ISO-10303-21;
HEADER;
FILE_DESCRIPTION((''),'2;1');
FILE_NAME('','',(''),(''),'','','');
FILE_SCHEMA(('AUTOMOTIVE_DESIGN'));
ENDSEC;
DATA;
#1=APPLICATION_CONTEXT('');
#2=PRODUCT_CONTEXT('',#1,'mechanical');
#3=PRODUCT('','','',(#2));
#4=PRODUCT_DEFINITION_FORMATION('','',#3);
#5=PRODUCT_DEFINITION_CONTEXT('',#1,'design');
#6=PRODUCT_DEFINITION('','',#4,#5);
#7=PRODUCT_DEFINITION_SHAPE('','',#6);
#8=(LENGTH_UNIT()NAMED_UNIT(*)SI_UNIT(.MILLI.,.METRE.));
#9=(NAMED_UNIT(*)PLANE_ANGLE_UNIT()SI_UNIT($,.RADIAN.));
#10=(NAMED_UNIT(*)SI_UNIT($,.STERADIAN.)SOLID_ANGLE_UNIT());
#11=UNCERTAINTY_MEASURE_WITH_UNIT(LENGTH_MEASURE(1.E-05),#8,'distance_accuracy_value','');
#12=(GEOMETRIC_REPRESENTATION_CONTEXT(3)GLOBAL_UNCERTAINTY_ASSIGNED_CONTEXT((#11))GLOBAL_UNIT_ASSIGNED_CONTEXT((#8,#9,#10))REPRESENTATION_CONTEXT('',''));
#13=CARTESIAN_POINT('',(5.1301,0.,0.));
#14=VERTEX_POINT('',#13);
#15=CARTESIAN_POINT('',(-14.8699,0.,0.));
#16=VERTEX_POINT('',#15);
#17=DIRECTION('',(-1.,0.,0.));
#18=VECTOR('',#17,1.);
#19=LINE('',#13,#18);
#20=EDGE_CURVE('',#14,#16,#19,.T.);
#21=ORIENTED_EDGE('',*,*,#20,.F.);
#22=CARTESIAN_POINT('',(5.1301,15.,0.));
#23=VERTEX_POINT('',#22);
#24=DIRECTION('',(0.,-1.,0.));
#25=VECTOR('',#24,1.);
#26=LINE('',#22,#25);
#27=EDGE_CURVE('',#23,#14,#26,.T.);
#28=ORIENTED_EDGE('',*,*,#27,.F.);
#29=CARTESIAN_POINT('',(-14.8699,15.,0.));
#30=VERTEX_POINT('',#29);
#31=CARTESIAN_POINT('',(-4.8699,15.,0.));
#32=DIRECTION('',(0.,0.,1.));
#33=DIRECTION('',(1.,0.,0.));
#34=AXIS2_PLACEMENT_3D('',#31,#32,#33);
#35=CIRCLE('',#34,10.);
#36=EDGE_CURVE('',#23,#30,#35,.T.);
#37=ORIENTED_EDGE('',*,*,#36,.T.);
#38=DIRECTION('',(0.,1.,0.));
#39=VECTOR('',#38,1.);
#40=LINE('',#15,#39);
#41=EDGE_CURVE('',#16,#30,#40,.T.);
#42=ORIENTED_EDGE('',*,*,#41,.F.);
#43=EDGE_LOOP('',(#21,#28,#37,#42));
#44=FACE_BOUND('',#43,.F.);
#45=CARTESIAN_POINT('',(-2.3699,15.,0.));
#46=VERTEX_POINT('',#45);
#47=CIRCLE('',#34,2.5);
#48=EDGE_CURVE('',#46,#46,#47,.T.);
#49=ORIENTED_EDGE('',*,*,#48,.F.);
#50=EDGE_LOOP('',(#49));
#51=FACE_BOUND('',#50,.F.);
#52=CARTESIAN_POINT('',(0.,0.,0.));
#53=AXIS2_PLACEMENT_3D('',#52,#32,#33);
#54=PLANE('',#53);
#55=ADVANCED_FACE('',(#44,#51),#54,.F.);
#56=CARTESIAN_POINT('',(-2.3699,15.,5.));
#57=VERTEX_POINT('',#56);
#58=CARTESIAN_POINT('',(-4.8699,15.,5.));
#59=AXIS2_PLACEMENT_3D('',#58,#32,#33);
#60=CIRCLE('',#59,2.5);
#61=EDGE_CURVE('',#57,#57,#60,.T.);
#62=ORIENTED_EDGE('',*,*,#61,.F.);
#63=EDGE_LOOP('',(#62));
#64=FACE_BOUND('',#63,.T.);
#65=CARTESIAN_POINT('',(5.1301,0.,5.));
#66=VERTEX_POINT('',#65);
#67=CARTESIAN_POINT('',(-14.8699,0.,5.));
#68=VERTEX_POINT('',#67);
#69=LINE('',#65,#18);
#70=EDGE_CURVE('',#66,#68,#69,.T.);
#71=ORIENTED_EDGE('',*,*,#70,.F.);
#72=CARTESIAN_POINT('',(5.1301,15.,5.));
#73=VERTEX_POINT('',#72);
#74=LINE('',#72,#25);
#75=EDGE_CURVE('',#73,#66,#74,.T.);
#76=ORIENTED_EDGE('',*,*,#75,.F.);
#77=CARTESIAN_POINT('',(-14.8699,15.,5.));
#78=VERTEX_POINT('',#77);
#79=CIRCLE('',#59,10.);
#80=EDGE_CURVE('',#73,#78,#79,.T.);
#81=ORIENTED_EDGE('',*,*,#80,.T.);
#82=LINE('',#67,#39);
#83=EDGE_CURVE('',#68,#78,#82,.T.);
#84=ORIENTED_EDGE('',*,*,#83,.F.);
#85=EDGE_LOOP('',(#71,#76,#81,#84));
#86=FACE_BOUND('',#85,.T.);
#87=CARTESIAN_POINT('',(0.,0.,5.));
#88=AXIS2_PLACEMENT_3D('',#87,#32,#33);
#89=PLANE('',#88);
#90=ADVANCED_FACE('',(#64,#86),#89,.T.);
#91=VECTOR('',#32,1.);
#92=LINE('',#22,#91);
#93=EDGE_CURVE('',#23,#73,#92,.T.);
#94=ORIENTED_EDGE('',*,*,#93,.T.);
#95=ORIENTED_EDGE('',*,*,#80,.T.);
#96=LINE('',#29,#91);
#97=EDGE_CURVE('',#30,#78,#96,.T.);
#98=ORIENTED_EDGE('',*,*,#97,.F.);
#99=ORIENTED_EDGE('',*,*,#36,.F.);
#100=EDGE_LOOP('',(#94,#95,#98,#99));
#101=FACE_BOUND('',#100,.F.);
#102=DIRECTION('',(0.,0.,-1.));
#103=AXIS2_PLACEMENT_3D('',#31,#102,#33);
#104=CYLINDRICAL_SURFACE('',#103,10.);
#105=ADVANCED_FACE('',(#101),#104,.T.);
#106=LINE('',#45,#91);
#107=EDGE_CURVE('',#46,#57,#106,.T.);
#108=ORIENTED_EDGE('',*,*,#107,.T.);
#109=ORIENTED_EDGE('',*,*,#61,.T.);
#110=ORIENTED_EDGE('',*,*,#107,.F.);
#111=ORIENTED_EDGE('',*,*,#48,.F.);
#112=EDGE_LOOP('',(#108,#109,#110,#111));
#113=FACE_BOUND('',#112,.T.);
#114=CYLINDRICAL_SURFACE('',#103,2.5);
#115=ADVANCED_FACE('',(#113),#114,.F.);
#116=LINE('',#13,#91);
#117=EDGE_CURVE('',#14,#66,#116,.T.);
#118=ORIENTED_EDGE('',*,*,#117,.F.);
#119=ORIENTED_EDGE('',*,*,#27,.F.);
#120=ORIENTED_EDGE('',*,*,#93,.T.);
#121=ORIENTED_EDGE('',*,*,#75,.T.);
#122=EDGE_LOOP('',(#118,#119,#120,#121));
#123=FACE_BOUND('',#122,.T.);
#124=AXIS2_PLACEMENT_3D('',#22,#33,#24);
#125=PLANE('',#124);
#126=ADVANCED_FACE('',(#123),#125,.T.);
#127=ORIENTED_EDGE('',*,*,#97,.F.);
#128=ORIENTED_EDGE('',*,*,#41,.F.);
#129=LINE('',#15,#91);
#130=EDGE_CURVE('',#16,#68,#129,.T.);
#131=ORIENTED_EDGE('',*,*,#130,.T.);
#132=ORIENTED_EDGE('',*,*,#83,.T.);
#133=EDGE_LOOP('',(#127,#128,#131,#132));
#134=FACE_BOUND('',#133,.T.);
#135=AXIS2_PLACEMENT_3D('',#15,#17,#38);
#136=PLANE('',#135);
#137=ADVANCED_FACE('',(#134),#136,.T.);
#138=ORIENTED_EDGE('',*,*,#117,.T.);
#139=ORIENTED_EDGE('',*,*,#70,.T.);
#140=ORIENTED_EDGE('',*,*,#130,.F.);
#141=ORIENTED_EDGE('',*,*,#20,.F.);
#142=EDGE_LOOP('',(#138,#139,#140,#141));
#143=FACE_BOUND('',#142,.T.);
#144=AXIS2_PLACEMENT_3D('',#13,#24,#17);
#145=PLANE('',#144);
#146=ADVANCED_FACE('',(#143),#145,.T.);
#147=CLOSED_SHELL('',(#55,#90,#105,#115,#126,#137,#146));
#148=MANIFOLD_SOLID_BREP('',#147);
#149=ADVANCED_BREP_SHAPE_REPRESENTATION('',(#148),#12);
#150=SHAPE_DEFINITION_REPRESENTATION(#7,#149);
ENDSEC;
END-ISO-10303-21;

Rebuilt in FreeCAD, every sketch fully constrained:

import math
import FreeCAD as App
import Part
import Sketcher

doc = App.newDocument("Part")
body = doc.addObject("PartDesign::Body", "Body")

# Sketch on XY plane
sketch1 = body.newObject("Sketcher::SketchObject", "Sketch")
sketch1.AttachmentSupport = (doc.getObject("XY_Plane"), [""])
sketch1.MapMode = "FlatFace"
sketch1.addGeometry(Part.LineSegment(App.Vector(5.1, 0, 0), App.Vector(5.1, 15, 0)), False)
sketch1.addGeometry(Part.ArcOfCircle(Part.Circle(App.Vector(-4.9, 15, 0), App.Vector(0, 0, 1), 10), math.radians(0), math.radians(180)), False)
sketch1.addGeometry(Part.LineSegment(App.Vector(-14.9, 15, 0), App.Vector(-14.9, 0, 0)), False)
sketch1.addGeometry(Part.LineSegment(App.Vector(-14.9, 0, 0), App.Vector(5.1, 0, 0)), False)
sketch1.addGeometry(Part.Circle(App.Vector(-4.9, 15, 0), App.Vector(0, 0, 1), 2.5), False)
sketch1.addConstraint(Sketcher.Constraint("Tangent", 0, 2, 1, 1))
sketch1.addConstraint(Sketcher.Constraint("Tangent", 1, 2, 2, 1))
sketch1.addConstraint(Sketcher.Constraint("Coincident", 2, 2, 3, 1))
sketch1.addConstraint(Sketcher.Constraint("Coincident", 3, 2, 0, 1))
sketch1.addConstraint(Sketcher.Constraint("Vertical", 0))
sketch1.addConstraint(Sketcher.Constraint("Vertical", 2))
sketch1.addConstraint(Sketcher.Constraint("Horizontal", 3))
sketch1.addConstraint(Sketcher.Constraint("Coincident", 4, 3, 1, 3))
sketch1.addConstraint(Sketcher.Constraint("PointOnObject", 2, 2, -1))
sketch1.addConstraint(Sketcher.Constraint("Diameter", 4, 5.0))
sketch1.addConstraint(Sketcher.Constraint("Radius", 1, 10.0))
sketch1.addConstraint(Sketcher.Constraint("DistanceY", 0, 1, 0, 2, 15.0))
sketch1.addConstraint(Sketcher.Constraint("DistanceX", 1, 3, -1, 1, 4.87))
pad1 = body.newObject("PartDesign::Pad", "Pad")
pad1.Profile = sketch1
pad1.Length = 5

doc.recompute()
